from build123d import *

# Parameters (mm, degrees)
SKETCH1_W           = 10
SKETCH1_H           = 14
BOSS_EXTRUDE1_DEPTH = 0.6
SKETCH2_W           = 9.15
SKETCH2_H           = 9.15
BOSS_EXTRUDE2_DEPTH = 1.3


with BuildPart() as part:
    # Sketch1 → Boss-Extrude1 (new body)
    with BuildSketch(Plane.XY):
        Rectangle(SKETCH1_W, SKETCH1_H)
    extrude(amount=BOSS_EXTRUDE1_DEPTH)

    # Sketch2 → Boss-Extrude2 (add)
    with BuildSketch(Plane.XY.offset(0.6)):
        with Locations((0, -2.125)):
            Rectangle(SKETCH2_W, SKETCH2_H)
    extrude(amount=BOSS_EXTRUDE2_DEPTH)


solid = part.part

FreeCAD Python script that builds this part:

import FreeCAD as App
import Part
import Sketcher
from FreeCAD import Vector
Q = App.Units.Quantity

doc = App.newDocument("Part")
body = doc.addObject("PartDesign::Body", "Body")

sketch1 = body.newObject("Sketcher::SketchObject", "Sketch")
sketch1.AttachmentSupport = (doc.getObject("XY_Plane"), [""])
sketch1.MapMode = "FlatFace"
sketch1.addGeometry(Part.LineSegment(Vector(-5, 7, 0), Vector(-5, -7, 0)), False)
sketch1.addGeometry(Part.LineSegment(Vector(-5, -7, 0), Vector(5, -7, 0)), False)
sketch1.addGeometry(Part.LineSegment(Vector(5, -7, 0), Vector(5, 7, 0)), False)
sketch1.addGeometry(Part.LineSegment(Vector(5, 7, 0), Vector(-5, 7, 0)), False)
sketch1.addConstraint(Sketcher.Constraint("Coincident", 0, 2, 1, 1))
sketch1.addConstraint(Sketcher.Constraint("Coincident", 1, 2, 2, 1))
sketch1.addConstraint(Sketcher.Constraint("Coincident", 2, 2, 3, 1))
sketch1.addConstraint(Sketcher.Constraint("Coincident", 3, 2, 0, 1))
sketch1.addConstraint(Sketcher.Constraint("Vertical", 0))
sketch1.addConstraint(Sketcher.Constraint("Horizontal", 1))
sketch1.addConstraint(Sketcher.Constraint("Vertical", 2))
sketch1.addConstraint(Sketcher.Constraint("Horizontal", 3))
sketch1.addConstraint(Sketcher.Constraint("Symmetric", 0, 2, 2, 2, -1, 1))
sketch1.addConstraint(Sketcher.Constraint("DistanceX", 1, 1, 1, 2, Q("10 mm")))
sketch1.addConstraint(Sketcher.Constraint("DistanceY", 0, 2, 0, 1, Q("14 mm")))
pad1 = body.newObject("PartDesign::Pad", "Pad")
pad1.Profile = sketch1
pad1.Length = 0.6

sketch2 = body.newObject("Sketcher::SketchObject", "Sketch001")
sketch2.AttachmentSupport = (doc.getObject("XY_Plane"), [""])
sketch2.MapMode = "FlatFace"
sketch2.AttachmentOffset = App.Placement(Vector(0, 0, 0.6), App.Rotation())
sketch2.addGeometry(Part.LineSegment(Vector(-4.575, 2.45, 0), Vector(-4.575, -6.7, 0)), False)
sketch2.addGeometry(Part.LineSegment(Vector(-4.575, -6.7, 0), Vector(4.575, -6.7, 0)), False)
sketch2.addGeometry(Part.LineSegment(Vector(4.575, -6.7, 0), Vector(4.575, 2.45, 0)), False)
sketch2.addGeometry(Part.LineSegment(Vector(4.575, 2.45, 0), Vector(-4.575, 2.45, 0)), False)
sketch2.addConstraint(Sketcher.Constraint("Coincident", 0, 2, 1, 1))
sketch2.addConstraint(Sketcher.Constraint("Coincident", 1, 2, 2, 1))
sketch2.addConstraint(Sketcher.Constraint("Coincident", 2, 2, 3, 1))
sketch2.addConstraint(Sketcher.Constraint("Coincident", 3, 2, 0, 1))
sketch2.addConstraint(Sketcher.Constraint("Vertical", 0))
sketch2.addConstraint(Sketcher.Constraint("Horizontal", 1))
sketch2.addConstraint(Sketcher.Constraint("Vertical", 2))
sketch2.addConstraint(Sketcher.Constraint("Horizontal", 3))
sketch2.addConstraint(Sketcher.Constraint("Equal", 3, 0))
sketch2.addConstraint(Sketcher.Constraint("DistanceX", 1, 1, 1, 2, Q("9.15 mm")))
sketch2.addConstraint(Sketcher.Constraint("DistanceY", 0, 2, -1, 1, Q("6.7 mm")))
sketch2.addConstraint(Sketcher.Constraint("DistanceX", 0, 2, -1, 1, Q("4.575 mm")))
pad2 = body.newObject("PartDesign::Pad", "Pad001")
pad2.Profile = sketch2
pad2.Length = 1.3

doc.recompute()
